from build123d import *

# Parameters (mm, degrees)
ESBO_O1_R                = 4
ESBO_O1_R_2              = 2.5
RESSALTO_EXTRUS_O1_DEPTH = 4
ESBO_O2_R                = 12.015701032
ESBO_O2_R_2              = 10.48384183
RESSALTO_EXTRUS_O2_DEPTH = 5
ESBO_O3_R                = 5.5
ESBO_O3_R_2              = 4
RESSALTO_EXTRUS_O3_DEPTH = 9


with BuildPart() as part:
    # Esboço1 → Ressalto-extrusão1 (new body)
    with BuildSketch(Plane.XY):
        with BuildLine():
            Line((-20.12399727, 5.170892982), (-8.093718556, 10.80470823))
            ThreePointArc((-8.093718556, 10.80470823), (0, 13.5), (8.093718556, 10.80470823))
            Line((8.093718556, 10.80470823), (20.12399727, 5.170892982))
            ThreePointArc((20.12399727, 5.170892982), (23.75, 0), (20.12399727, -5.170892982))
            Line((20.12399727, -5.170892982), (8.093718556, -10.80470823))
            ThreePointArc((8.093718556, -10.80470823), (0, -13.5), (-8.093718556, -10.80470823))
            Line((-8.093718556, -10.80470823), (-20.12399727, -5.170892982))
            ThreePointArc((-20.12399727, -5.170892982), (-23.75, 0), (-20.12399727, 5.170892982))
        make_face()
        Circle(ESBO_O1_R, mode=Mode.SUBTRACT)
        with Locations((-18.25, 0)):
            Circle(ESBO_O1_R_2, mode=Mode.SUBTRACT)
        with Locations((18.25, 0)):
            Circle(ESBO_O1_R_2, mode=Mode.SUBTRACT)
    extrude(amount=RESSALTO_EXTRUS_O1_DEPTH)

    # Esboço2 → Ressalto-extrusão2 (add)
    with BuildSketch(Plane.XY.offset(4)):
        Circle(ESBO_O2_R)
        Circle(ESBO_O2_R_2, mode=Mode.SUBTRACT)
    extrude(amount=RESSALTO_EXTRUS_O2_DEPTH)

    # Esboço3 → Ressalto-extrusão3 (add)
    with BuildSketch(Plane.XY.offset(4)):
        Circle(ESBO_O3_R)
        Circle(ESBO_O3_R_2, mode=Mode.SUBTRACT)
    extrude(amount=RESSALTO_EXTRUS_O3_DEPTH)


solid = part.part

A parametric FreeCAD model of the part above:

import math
import FreeCAD as App
import Part
import Sketcher
Q = App.Units.Quantity

doc = App.newDocument("Part")
body = doc.addObject("PartDesign::Body", "Body")

sketch1 = doc.addObject("Sketcher::SketchObject", "Sketch")
body.addObject(sketch1)
sketch1.AttachmentSupport = (doc.XY_Plane, [""])
sketch1.MapMode = "FlatFace"
sketch1.addGeometry(Part.LineSegment(App.Vector(-8.1, 10.8, 0), App.Vector(-20.1, 5.2, 0)), False)
sketch1.addGeometry(Part.ArcOfCircle(Part.Circle(App.Vector(-18.2, 0, 0), App.Vector(0, 0, 1), 5.5), math.radians(110), math.radians(250)), False)
sketch1.addGeometry(Part.LineSegment(App.Vector(-20.1, -5.2, 0), App.Vector(-8.1, -10.8, 0)), False)
sketch1.addGeometry(Part.ArcOfCircle(Part.Circle(App.Vector(0, 0, 0), App.Vector(0, 0, 1), 13.5), math.radians(-127), math.radians(-53)), False)
sketch1.addGeometry(Part.LineSegment(App.Vector(8.1, -10.8, 0), App.Vector(20.1, -5.2, 0)), False)
sketch1.addGeometry(Part.ArcOfCircle(Part.Circle(App.Vector(18.2, 0, 0), App.Vector(0, 0, 1), 5.5), math.radians(-70), math.radians(70)), False)
sketch1.addGeometry(Part.LineSegment(App.Vector(20.1, 5.2, 0), App.Vector(8.1, 10.8, 0)), False)
sketch1.addGeometry(Part.ArcOfCircle(Part.Circle(App.Vector(0, 0, 0), App.Vector(0, 0, 1), 13.5), math.radians(53), math.radians(127)), False)
sketch1.addGeometry(Part.Circle(App.Vector(18.2, 0, 0), App.Vector(0, 0, 1), 2.5), False)
sketch1.addGeometry(Part.Circle(App.Vector(0, 0, 0), App.Vector(0, 0, 1), 4), False)
sketch1.addGeometry(Part.Circle(App.Vector(-18.2, 0, 0), App.Vector(0, 0, 1), 2.5), False)
sketch1.addConstraint(Sketcher.Constraint("Coincident", 0, 2, 1, 1))
sketch1.addConstraint(Sketcher.Constraint("Coincident", 1, 2, 2, 1))
sketch1.addConstraint(Sketcher.Constraint("Coincident", 2, 2, 3, 1))
sketch1.addConstraint(Sketcher.Constraint("Coincident", 3, 2, 4, 1))
sketch1.addConstraint(Sketcher.Constraint("Coincident", 4, 2, 5, 1))
sketch1.addConstraint(Sketcher.Constraint("Coincident", 5, 2, 6, 1))
sketch1.addConstraint(Sketcher.Constraint("Coincident", 6, 2, 7, 1))
sketch1.addConstraint(Sketcher.Constraint("Coincident", 7, 2, 0, 1))
sketch1.addConstraint(Sketcher.Constraint("Coincident", 3, 3, -1, 1))
sketch1.addConstraint(Sketcher.Constraint("Coincident", 7, 3, -1, 1))
sketch1.addConstraint(Sketcher.Constraint("Coincident", 9, 3, -1, 1))
sketch1.addConstraint(Sketcher.Constraint("Coincident", 8, 3, 5, 3))
sketch1.addConstraint(Sketcher.Constraint("Coincident", 10, 3, 1, 3))
sketch1.addConstraint(Sketcher.Constraint("Equal", 1, 5))
sketch1.addConstraint(Sketcher.Constraint("Equal", 3, 7))
sketch1.addConstraint(Sketcher.Constraint("Equal", 8, 10))
sketch1.addConstraint(Sketcher.Constraint("Symmetric", 1, 3, 5, 3, -1, 1))
sketch1.addConstraint(Sketcher.Constraint("Symmetric", 1, 2, 4, 2, -2))
sketch1.addConstraint(Sketcher.Constraint("Parallel", 0, 4))
sketch1.addConstraint(Sketcher.Constraint("Parallel", 2, 6))
sketch1.addConstraint(Sketcher.Constraint("Horizontal", 2, 2, 3, 2))
sketch1.addConstraint(Sketcher.Constraint("Horizontal", 0, 2, 5, 2))
sketch1.addConstraint(Sketcher.Constraint("Vertical", 0, 2, 1, 2))
sketch1.addConstraint(Sketcher.Constraint("Diameter", 8, Q("5 mm")))
sketch1.addConstraint(Sketcher.Constraint("Diameter", 9, Q("8 mm")))
sketch1.addConstraint(Sketcher.Constraint("Radius", 1, Q("5.5 mm")))
sketch1.addConstraint(Sketcher.Constraint("Radius", 3, Q("13.5 mm")))
sketch1.addConstraint(Sketcher.Constraint("DistanceX", 1, 3, 5, 3, Q("36.5 mm")))
sketch1.addConstraint(Sketcher.Constraint("DistanceY", 3, 2, 5, 2, Q("15.975601 mm")))
sketch1.addConstraint(Sketcher.Constraint("DistanceX", 2, 2, -1, 1, Q("8.093719 mm")))
pad1 = doc.addObject("PartDesign::Pad", "Pad")
body.addObject(pad1)
pad1.Profile = sketch1
pad1.Length = 4

sketch2 = doc.addObject("Sketcher::SketchObject", "Sketch001")
body.addObject(sketch2)
sketch2.AttachmentSupport = (doc.XY_Plane, [""])
sketch2.MapMode = "FlatFace"
sketch2.AttachmentOffset = App.Placement(App.Vector(0, 0, 4), App.Rotation())
sketch2.addGeometry(Part.Circle(App.Vector(0, 0, 0), App.Vector(0, 0, 1), 12), False)
sketch2.addGeometry(Part.Circle(App.Vector(0, 0, 0), App.Vector(0, 0, 1), 10), False)
sketch2.addConstraint(Sketcher.Constraint("Coincident", 0, 3, -1, 1))
sketch2.addConstraint(Sketcher.Constraint("Coincident", 1, 3, -1, 1))
sketch2.addConstraint(Sketcher.Constraint("Diameter", 0, Q("24.031402 mm")))
sketch2.addConstraint(Sketcher.Constraint("Diameter", 1, Q("20.967684 mm")))
pad2 = doc.addObject("PartDesign::Pad", "Pad001")
body.addObject(pad2)
pad2.Profile = sketch2
pad2.Length = 5

sketch3 = doc.addObject("Sketcher::SketchObject", "Sketch002")
body.addObject(sketch3)
sketch3.AttachmentSupport = (doc.XY_Plane, [""])
sketch3.MapMode = "FlatFace"
sketch3.AttachmentOffset = App.Placement(App.Vector(0, 0, 4), App.Rotation())
sketch3.addGeometry(Part.Circle(App.Vector(0, 0, 0), App.Vector(0, 0, 1), 5.5), False)
sketch3.addGeometry(Part.Circle(App.Vector(0, 0, 0), App.Vector(0, 0, 1), 4), False)
sketch3.addConstraint(Sketcher.Constraint("Coincident", 0, 3, -1, 1))
sketch3.addConstraint(Sketcher.Constraint("Coincident", 1, 3, -1, 1))
sketch3.addConstraint(Sketcher.Constraint("Diameter", 0, Q("11 mm")))
sketch3.addConstraint(Sketcher.Constraint("Diameter", 1, Q("8 mm")))
pad3 = doc.addObject("PartDesign::Pad", "Pad002")
body.addObject(pad3)
pad3.Profile = sketch3
pad3.Length = 9

doc.recompute()
